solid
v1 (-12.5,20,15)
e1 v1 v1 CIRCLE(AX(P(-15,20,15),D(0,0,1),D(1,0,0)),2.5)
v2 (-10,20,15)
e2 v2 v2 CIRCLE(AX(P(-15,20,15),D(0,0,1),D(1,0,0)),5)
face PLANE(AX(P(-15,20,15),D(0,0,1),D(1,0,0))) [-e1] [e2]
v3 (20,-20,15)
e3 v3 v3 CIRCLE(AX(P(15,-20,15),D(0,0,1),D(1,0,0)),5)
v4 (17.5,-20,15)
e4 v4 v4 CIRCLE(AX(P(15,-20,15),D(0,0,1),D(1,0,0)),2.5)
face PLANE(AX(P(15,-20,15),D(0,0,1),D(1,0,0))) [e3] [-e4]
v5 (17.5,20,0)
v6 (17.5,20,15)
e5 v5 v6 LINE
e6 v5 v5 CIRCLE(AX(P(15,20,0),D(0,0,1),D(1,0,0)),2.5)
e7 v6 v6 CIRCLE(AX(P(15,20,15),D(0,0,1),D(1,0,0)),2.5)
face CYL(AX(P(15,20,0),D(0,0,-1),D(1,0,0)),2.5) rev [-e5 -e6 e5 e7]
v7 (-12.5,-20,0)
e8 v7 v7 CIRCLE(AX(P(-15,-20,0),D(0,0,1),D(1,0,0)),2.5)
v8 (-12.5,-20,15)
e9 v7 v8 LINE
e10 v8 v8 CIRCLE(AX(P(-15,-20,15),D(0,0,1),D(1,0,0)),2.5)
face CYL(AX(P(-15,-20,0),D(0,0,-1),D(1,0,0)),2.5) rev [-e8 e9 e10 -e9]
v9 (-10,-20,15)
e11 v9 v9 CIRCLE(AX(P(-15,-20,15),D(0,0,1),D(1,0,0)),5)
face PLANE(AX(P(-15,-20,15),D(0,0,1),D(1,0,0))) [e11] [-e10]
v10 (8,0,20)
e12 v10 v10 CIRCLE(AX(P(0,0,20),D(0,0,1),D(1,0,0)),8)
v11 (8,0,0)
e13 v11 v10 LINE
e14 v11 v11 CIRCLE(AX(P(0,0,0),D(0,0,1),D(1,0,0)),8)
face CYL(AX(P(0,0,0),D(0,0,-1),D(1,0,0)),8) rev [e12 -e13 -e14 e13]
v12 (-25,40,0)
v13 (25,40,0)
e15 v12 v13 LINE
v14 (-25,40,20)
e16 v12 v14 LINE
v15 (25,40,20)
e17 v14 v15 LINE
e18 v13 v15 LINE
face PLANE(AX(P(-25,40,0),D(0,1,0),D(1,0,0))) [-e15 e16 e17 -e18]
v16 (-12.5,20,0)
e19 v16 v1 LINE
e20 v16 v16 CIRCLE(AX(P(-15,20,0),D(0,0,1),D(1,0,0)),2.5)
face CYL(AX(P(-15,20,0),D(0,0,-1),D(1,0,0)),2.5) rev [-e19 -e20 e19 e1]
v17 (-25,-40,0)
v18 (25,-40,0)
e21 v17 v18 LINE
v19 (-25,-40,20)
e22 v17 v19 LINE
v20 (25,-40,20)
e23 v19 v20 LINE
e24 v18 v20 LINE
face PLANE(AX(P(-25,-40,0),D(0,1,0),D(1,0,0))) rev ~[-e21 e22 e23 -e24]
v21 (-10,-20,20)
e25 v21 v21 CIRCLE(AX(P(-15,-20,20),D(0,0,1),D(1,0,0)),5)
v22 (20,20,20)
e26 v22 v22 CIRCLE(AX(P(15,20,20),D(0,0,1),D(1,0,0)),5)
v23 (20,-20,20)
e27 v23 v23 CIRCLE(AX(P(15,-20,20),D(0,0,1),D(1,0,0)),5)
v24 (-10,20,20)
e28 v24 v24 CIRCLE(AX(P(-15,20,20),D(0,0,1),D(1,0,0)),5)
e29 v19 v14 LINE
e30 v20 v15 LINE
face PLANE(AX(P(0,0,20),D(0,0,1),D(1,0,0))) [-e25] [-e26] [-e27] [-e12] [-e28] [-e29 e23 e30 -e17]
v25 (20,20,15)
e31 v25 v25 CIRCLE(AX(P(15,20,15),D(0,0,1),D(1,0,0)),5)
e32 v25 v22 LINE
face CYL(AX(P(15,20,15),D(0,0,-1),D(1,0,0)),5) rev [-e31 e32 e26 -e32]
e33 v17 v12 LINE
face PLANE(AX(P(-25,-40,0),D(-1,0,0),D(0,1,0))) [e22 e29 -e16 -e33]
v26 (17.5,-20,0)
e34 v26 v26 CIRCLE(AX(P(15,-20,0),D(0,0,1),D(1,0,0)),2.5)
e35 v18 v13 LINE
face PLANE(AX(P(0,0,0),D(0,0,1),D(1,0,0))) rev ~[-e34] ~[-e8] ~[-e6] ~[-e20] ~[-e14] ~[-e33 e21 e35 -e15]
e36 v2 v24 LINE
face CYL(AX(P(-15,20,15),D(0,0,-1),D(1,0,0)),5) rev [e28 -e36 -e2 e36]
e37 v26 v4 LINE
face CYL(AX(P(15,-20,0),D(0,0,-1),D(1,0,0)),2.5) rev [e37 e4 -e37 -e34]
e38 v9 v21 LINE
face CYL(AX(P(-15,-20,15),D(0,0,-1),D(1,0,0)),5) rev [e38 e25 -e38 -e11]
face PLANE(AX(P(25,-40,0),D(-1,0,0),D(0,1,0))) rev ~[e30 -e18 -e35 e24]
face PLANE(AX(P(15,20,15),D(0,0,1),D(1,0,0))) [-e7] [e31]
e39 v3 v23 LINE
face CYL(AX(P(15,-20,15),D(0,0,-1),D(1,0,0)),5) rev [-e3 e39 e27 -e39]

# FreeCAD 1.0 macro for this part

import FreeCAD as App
import Part
import Sketcher

V = App.Vector
Q = App.Units.Quantity

doc = App.newDocument("Part")
body = doc.addObject("PartDesign::Body", "Body")

# Sketch on XY plane
sketch1 = body.newObject("Sketcher::SketchObject", "Sketch")
sketch1.AttachmentSupport = (doc.getObject("XY_Plane"), [""])
sketch1.MapMode = "FlatFace"
sketch1.addGeometry(Part.LineSegment(V(-25, 40, 0), V(-25, -40, 0)), False)
sketch1.addGeometry(Part.LineSegment(V(-25, -40, 0), V(25, -40, 0)), False)
sketch1.addGeometry(Part.LineSegment(V(25, -40, 0), V(25, 40, 0)), False)
sketch1.addGeometry(Part.LineSegment(V(25, 40, 0), V(-25, 40, 0)), False)
sketch1.addGeometry(Part.Circle(V(-15, -20, 0), V(0, 0, 1), 2.5), False)
sketch1.addGeometry(Part.Circle(V(15, -20, 0), V(0, 0, 1), 2.5), False)
sketch1.addGeometry(Part.Circle(V(-15, 20, 0), V(0, 0, 1), 2.5), False)
sketch1.addGeometry(Part.Circle(V(0, 0, 0), V(0, 0, 1), 8), False)
sketch1.addGeometry(Part.Circle(V(15, 20, 0), V(0, 0, 1), 2.5), False)
sketch1.addConstraint(Sketcher.Constraint("Coincident", 0, 2, 1, 1))
sketch1.addConstraint(Sketcher.Constraint("Coincident", 1, 2, 2, 1))
sketch1.addConstraint(Sketcher.Constraint("Coincident", 2, 2, 3, 1))
sketch1.addConstraint(Sketcher.Constraint("Coincident", 3, 2, 0, 1))
sketch1.addConstraint(Sketcher.Constraint("Vertical", 0))
sketch1.addConstraint(Sketcher.Constraint("Horizontal", 1))
sketch1.addConstraint(Sketcher.Constraint("Vertical", 2))
sketch1.addConstraint(Sketcher.Constraint("Horizontal", 3))
sketch1.addConstraint(Sketcher.Constraint("Coincident", 7, 3, -1, 1))
sketch1.addConstraint(Sketcher.Constraint("Equal", 4, 5))
sketch1.addConstraint(Sketcher.Constraint("Equal", 5, 6))
sketch1.addConstraint(Sketcher.Constraint("Equal", 6, 8))
sketch1.addConstraint(Sketcher.Constraint("Symmetric", 5, 3, 6, 3, -1, 1))
sketch1.addConstraint(Sketcher.Constraint("Symmetric", 4, 3, 8, 3, -1, 1))
sketch1.addConstraint(Sketcher.Constraint("Symmetric", 0, 2, 2, 2, -1, 1))
sketch1.addConstraint(Sketcher.Constraint("Symmetric", 4, 3, 5, 3, -2))
sketch1.addConstraint(Sketcher.Constraint("Diameter", 4, Q("5 mm")))
sketch1.addConstraint(Sketcher.Constraint("Diameter", 7, Q("16 mm")))
sketch1.addConstraint(Sketcher.Constraint("DistanceX", 1, 1, 1, 2, Q("50 mm")))
sketch1.addConstraint(Sketcher.Constraint("DistanceY", 0, 2, 0, 1, Q("80 mm")))
sketch1.addConstraint(Sketcher.Constraint("DistanceX", 4, 3, -1, 1, Q("15 mm")))
sketch1.addConstraint(Sketcher.Constraint("DistanceY", 4, 3, -1, 1, Q("20 mm")))
pad1 = body.newObject("PartDesign::Pad", "Pad")
pad1.Profile = sketch1
pad1.Length = 20

# Sketch on XY plane
sketch2 = body.newObject("Sketcher::SketchObject", "Sketch001")
sketch2.AttachmentSupport = (doc.getObject("XY_Plane"), [""])
sketch2.MapMode = "FlatFace"
sketch2.AttachmentOffset = App.Placement(V(0, 0, 15), App.Rotation())
sketch2.addGeometry(Part.Circle(V(-15, -20, 0), V(0, 0, 1), 5), False)
sketch2.addGeometry(Part.Circle(V(-15, -20, 0), V(0, 0, 1), 2.5), False)
sketch2.addGeometry(Part.Circle(V(15, -20, 0), V(0, 0, 1), 5), False)
sketch2.addGeometry(Part.Circle(V(15, -20, 0), V(0, 0, 1), 2.5), False)
sketch2.addGeometry(Part.Circle(V(-15, 20, 0), V(0, 0, 1), 5), False)
sketch2.addGeometry(Part.Circle(V(-15, 20, 0), V(0, 0, 1), 2.5), False)
sketch2.addGeometry(Part.Circle(V(15, 20, 0), V(0, 0, 1), 5), False)
sketch2.addGeometry(Part.Circle(V(15, 20, 0), V(0, 0, 1), 2.5), False)
sketch2.addConstraint(Sketcher.Constraint("Coincident", 1, 3, 0, 3))
sketch2.addConstraint(Sketcher.Constraint("Coincident", 3, 3, 2, 3))
sketch2.addConstraint(Sketcher.Constraint("Coincident", 5, 3, 4, 3))
sketch2.addConstraint(Sketcher.Constraint("Coincident", 7, 3, 6, 3))
sketch2.addConstraint(Sketcher.Constraint("Equal", 0, 2))
sketch2.addConstraint(Sketcher.Constraint("Equal", 1, 3))
sketch2.addConstraint(Sketcher.Constraint("Equal", 2, 4))
sketch2.addConstraint(Sketcher.Constraint("Equal", 3, 5))
sketch2.addConstraint(Sketcher.Constraint("Equal", 4, 6))
sketch2.addConstraint(Sketcher.Constraint("Equal", 5, 7))
sketch2.addConstraint(Sketcher.Constraint("Symmetric", 2, 3, 4, 3, -1, 1))
sketch2.addConstraint(Sketcher.Constraint("Symmetric", 0, 3, 6, 3, -1, 1))
sketch2.addConstraint(Sketcher.Constraint("Symmetric", 0, 3, 2, 3, -2))
sketch2.addConstraint(Sketcher.Constraint("Diameter", 0, Q("10 mm")))
sketch2.addConstraint(Sketcher.Constraint("Diameter", 1, Q("5 mm")))
sketch2.addConstraint(Sketcher.Constraint("DistanceX", 0, 3, -1, 1, Q("15 mm")))
sketch2.addConstraint(Sketcher.Constraint("DistanceY", 0, 3, -1, 1, Q("20 mm")))
pocket1 = body.newObject("PartDesign::Pocket", "Pocket")
pocket1.Profile = sketch2
pocket1.Length = 5
pocket1.Reversed = True

doc.recompute()
